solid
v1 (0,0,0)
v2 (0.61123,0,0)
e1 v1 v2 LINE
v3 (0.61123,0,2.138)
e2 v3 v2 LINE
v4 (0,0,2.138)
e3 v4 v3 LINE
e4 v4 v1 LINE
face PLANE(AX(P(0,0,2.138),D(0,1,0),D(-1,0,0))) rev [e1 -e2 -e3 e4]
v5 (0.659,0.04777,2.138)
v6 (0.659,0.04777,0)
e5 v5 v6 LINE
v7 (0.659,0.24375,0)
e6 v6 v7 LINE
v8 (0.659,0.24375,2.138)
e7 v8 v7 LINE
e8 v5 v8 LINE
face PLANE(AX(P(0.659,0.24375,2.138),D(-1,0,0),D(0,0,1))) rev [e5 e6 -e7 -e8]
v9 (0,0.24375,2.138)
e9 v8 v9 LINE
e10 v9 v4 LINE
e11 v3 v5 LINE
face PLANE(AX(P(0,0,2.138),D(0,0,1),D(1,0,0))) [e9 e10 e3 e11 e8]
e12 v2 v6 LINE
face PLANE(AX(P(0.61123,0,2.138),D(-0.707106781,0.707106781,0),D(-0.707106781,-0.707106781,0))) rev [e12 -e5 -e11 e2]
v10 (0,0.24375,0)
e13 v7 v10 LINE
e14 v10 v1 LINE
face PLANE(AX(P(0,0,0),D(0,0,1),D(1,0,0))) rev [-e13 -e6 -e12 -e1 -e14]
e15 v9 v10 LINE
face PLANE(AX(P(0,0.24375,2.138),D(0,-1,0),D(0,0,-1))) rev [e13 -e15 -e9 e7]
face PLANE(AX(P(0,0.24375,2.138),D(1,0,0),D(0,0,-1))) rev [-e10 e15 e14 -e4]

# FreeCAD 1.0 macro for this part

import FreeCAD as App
import Part
import Sketcher

V = App.Vector
Q = App.Units.Quantity


def add_polygon(sketch, points):
    """Adds a closed chain of lines whose ends are joined by coincident constraints."""
    first, n = sketch.GeometryCount, len(points)
    for a, b in zip(points, points[1:] + points[:1]):
        sketch.addGeometry(Part.LineSegment(App.Vector(*a, 0), App.Vector(*b, 0)), False)
    for i in range(n):
        sketch.addConstraint(Sketcher.Constraint("Coincident", first + i, 2, first + (i + 1) % n, 1))

doc = App.newDocument("Part")
body = doc.addObject("PartDesign::Body", "Body")

sketch1 = body.newObject("Sketcher::SketchObject", "Sketch")
sketch1.AttachmentSupport = (doc.getObject("XY_Plane"), [""])
sketch1.MapMode = "FlatFace"
add_polygon(sketch1, [(0, 0), (0.61, 0), (0.66, 0.05), (0.66, 0.24), (0, 0.24)])
sketch1.addConstraint([
    Sketcher.Constraint("Horizontal", 0),
    Sketcher.Constraint("Vertical", 2),
    Sketcher.Constraint("Horizontal", 3),
    Sketcher.Constraint("Vertical", 4),
    Sketcher.Constraint("Coincident", 4, 2, -1, 1),
    Sketcher.Constraint("Angle", 1, Q("45 deg")),
    Sketcher.Constraint("DistanceX", 3, 2, 3, 1, Q("0.659 mm")),
    Sketcher.Constraint("DistanceX", 0, 1, 0, 2, Q("0.61123 mm")),
    Sketcher.Constraint("DistanceY", 2, 1, 2, 2, Q("0.19598 mm")),
])
pad1 = body.newObject("PartDesign::Pad", "Pad")
pad1.Profile = sketch1
pad1.Length = 2.138

doc.recompute()
